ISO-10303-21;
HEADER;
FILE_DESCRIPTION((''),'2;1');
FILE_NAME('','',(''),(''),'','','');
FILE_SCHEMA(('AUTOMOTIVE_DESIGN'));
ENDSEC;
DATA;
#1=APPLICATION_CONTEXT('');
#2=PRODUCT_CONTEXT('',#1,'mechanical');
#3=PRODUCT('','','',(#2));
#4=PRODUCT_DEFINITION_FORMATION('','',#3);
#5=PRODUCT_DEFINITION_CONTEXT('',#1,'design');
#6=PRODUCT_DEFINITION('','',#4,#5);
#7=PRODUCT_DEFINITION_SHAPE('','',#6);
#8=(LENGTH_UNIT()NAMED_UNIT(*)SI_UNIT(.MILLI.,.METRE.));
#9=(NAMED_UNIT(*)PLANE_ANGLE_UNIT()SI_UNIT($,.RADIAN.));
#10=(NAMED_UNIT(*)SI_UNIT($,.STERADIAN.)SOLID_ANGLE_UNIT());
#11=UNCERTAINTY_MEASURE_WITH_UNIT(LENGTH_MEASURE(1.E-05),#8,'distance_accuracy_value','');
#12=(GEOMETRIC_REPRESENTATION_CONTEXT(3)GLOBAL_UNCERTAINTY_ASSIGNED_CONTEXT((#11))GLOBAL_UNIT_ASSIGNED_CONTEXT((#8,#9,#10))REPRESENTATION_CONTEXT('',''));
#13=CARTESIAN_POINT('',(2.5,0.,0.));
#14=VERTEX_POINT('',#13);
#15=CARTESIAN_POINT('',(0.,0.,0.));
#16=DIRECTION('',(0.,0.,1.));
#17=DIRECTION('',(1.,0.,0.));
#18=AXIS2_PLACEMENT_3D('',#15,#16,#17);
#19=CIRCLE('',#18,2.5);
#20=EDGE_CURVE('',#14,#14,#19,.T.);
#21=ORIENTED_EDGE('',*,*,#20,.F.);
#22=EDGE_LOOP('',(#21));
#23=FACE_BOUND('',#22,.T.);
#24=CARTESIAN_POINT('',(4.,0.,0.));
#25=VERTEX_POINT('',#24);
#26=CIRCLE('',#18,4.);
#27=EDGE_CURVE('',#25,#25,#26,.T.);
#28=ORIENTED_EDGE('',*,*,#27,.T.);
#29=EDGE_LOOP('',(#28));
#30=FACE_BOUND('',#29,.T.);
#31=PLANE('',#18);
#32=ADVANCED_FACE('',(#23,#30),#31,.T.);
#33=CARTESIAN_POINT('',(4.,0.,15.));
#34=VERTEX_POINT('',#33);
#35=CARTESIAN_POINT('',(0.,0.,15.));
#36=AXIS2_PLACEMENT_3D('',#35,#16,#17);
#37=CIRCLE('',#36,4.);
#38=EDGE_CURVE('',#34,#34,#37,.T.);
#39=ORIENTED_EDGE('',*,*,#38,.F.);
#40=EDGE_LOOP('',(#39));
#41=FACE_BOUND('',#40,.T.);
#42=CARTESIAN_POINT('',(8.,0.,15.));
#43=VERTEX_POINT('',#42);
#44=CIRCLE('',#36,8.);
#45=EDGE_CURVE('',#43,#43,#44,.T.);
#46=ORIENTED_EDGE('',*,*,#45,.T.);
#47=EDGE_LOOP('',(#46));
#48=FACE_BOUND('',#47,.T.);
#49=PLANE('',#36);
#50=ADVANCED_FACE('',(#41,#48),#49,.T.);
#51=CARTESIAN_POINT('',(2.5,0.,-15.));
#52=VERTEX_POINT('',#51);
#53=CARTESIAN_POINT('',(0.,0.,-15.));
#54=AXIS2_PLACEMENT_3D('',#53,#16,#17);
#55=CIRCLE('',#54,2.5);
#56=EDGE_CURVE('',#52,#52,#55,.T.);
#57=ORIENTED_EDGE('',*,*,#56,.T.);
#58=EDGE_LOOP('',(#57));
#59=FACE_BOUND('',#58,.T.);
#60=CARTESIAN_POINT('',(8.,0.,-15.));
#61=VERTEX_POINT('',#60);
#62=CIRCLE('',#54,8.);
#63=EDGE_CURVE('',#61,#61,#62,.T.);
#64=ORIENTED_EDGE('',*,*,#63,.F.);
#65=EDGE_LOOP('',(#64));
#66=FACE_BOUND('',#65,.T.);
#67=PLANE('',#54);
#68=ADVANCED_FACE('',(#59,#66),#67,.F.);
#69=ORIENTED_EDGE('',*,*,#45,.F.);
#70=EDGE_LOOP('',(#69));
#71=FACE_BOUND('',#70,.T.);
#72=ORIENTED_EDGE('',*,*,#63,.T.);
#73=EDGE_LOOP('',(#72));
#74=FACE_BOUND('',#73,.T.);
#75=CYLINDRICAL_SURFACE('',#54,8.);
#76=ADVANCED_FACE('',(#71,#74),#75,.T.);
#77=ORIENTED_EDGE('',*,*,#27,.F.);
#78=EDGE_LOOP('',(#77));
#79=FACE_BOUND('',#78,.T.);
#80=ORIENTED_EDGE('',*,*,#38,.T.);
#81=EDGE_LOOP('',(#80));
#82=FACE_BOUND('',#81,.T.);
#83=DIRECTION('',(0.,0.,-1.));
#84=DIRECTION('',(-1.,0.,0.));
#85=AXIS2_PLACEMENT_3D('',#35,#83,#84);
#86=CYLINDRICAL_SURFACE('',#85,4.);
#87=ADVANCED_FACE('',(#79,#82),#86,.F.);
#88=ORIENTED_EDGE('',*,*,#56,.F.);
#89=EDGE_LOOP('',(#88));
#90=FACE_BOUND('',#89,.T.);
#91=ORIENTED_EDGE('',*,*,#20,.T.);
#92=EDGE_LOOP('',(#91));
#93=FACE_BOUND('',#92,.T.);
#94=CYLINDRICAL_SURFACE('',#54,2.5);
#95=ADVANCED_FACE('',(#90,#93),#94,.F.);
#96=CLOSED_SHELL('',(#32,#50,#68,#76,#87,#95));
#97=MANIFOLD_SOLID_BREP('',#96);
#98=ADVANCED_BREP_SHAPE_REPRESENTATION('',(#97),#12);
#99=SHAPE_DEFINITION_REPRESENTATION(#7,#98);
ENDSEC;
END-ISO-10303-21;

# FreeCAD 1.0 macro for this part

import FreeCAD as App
import Part
import Sketcher
from FreeCAD import Vector
Q = App.Units.Quantity

doc = App.newDocument("Part")
params = doc.addObject("Spreadsheet::Sheet", "Params")
for row, (alias, value) in enumerate([
    ("sketch1_diameter", "16 mm"),
    ("sketch1_diameter2", "5 mm"),
    ("pad1_length", "15 mm"),
    ("sketch2_diameter", "16 mm"),
    ("sketch2_diameter2", "8 mm"),
    ("pad2_length", "15 mm"),
], start=1):
    params.set(f"A{row}", alias)
    params.set(f"B{row}", "=" + value)
    params.setAlias(f"B{row}", alias)

body = doc.addObject("PartDesign::Body", "Body")

# Sketch on XY plane
sketch1 = body.newObject("Sketcher::SketchObject", "Sketch")
sketch1.AttachmentSupport = (doc.getObject("XY_Plane"), [""])
sketch1.MapMode = "FlatFace"
sketch1.addGeometry(Part.Circle(Vector(0, 0, 0), Vector(0, 0, 1), 8), False)
sketch1.addGeometry(Part.Circle(Vector(0, 0, 0), Vector(0, 0, 1), 2.5), False)
sketch1.addConstraint(Sketcher.Constraint("Coincident", 0, 3, -1, 1))
sketch1.addConstraint(Sketcher.Constraint("Coincident", 1, 3, -1, 1))
sketch1.addConstraint(Sketcher.Constraint("Diameter", 0, Q("16 mm")))
sketch1.addConstraint(Sketcher.Constraint("Diameter", 1, Q("5 mm")))
sketch1.setExpression("Constraints[2]", "Params.sketch1_diameter")
sketch1.setExpression("Constraints[3]", "Params.sketch1_diameter2")
pad1 = body.newObject("PartDesign::Pad", "Pad")
pad1.Profile = sketch1
pad1.setExpression("Length", "Params.pad1_length")
pad1.Reversed = True

# Sketch on XY plane
sketch2 = body.newObject("Sketcher::SketchObject", "Sketch001")
sketch2.AttachmentSupport = (doc.getObject("XY_Plane"), [""])
sketch2.MapMode = "FlatFace"
sketch2.AttachmentOffset = App.Placement(Vector(0, 0, 15), App.Rotation())
sketch2.addGeometry(Part.Circle(Vector(0, 0, 0), Vector(0, 0, 1), 8), False)
sketch2.addGeometry(Part.Circle(Vector(0, 0, 0), Vector(0, 0, 1), 4), False)
sketch2.addConstraint(Sketcher.Constraint("Coincident", 0, 3, -1, 1))
sketch2.addConstraint(Sketcher.Constraint("Coincident", 1, 3, -1, 1))
sketch2.addConstraint(Sketcher.Constraint("Diameter", 0, Q("16 mm")))
sketch2.addConstraint(Sketcher.Constraint("Diameter", 1, Q("8 mm")))
sketch2.setExpression("Constraints[2]", "Params.sketch2_diameter")
sketch2.setExpression("Constraints[3]", "Params.sketch2_diameter2")
pad2 = body.newObject("PartDesign::Pad", "Pad001")
pad2.Profile = sketch2
pad2.setExpression("Length", "Params.pad2_length")
pad2.Reversed = True

doc.recompute()
